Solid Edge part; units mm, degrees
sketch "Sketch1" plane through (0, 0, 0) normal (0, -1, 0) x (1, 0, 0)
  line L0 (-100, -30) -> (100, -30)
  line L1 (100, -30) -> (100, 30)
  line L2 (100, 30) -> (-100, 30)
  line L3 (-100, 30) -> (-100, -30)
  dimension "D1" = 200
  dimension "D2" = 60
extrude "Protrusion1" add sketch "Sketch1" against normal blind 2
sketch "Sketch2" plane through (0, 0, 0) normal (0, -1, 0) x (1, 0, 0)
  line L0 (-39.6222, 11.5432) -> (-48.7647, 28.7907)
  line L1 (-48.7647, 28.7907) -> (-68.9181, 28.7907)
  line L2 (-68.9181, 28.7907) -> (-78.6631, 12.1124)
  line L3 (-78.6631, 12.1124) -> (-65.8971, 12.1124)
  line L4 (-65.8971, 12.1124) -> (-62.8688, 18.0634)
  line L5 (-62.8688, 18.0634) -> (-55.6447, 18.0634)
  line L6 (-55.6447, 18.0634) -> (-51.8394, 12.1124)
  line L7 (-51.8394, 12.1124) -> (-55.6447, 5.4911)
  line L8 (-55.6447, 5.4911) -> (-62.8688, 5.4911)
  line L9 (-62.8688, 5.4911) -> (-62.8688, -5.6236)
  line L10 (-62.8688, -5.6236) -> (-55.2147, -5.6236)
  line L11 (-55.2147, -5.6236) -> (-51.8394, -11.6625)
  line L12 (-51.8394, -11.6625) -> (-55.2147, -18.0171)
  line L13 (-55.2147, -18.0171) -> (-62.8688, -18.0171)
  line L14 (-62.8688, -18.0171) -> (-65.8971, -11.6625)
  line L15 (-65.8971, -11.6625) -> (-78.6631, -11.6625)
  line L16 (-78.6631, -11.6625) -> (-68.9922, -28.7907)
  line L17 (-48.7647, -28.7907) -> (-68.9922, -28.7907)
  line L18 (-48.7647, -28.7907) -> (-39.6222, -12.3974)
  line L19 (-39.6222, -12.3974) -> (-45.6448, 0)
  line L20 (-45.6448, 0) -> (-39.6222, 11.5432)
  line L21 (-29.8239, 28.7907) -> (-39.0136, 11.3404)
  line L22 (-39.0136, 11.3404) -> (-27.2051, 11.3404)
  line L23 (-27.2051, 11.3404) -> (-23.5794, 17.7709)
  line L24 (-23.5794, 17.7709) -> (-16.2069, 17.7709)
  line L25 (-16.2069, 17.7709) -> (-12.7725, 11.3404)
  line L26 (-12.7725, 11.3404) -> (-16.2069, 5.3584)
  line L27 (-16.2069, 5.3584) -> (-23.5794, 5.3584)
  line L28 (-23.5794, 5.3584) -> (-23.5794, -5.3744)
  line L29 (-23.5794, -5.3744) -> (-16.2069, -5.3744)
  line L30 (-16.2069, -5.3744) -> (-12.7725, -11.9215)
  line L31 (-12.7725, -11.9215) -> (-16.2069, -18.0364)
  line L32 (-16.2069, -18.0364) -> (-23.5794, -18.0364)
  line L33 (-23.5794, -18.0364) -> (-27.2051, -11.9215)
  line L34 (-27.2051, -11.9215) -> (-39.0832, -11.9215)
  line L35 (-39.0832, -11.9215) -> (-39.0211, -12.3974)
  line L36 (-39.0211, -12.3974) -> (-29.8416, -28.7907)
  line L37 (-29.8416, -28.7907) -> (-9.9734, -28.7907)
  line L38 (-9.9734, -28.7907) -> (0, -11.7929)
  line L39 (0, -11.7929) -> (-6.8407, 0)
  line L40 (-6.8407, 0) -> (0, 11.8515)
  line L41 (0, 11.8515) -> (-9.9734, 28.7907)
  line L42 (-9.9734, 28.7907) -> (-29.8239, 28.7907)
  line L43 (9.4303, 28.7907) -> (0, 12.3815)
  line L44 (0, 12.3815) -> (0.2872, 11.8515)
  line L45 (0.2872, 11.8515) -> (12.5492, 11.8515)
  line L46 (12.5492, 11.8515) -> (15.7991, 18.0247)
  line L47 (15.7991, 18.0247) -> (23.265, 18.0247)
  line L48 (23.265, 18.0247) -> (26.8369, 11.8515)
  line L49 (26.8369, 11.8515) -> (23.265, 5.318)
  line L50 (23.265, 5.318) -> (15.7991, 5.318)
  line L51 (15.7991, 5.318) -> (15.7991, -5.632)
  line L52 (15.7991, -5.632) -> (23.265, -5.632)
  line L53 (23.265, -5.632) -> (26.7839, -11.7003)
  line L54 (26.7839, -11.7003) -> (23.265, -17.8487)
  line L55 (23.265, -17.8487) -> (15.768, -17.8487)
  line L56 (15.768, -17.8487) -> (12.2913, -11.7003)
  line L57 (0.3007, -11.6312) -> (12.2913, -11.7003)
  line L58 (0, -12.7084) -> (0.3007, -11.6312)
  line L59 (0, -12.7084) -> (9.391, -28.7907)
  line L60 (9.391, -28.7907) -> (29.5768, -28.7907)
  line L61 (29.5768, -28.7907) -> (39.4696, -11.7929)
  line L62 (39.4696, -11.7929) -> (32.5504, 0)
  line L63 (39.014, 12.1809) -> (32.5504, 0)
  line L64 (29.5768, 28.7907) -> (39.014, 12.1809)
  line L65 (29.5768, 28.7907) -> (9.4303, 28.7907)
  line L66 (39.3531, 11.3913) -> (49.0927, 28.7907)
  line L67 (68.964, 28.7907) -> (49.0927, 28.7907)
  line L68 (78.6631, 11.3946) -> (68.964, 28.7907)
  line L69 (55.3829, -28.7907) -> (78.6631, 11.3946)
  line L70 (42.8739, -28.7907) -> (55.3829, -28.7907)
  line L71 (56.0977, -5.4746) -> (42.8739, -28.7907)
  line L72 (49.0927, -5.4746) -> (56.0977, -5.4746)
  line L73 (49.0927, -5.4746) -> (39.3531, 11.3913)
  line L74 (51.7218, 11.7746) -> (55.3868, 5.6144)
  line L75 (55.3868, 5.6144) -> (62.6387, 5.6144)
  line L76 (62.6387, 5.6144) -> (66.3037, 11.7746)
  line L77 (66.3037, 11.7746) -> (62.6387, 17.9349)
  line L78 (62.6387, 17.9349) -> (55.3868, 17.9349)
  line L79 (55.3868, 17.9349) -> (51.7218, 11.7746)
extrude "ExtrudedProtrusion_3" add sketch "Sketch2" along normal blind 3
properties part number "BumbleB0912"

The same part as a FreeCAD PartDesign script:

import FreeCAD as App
import Part
import Sketcher

V = App.Vector
Q = App.Units.Quantity

doc = App.newDocument("Part")
body = doc.addObject("PartDesign::Body", "Body")

# Sketch on XZ plane
sketch1 = doc.addObject("Sketcher::SketchObject", "Sketch")
body.addObject(sketch1)
sketch1.AttachmentSupport = (doc.XZ_Plane, [""])
sketch1.MapMode = "FlatFace"
sketch1.addGeometry(Part.LineSegment(V(-100, 30, 0), V(-100, -30, 0)), False)
sketch1.addGeometry(Part.LineSegment(V(-100, -30, 0), V(100, -30, 0)), False)
sketch1.addGeometry(Part.LineSegment(V(100, -30, 0), V(100, 30, 0)), False)
sketch1.addGeometry(Part.LineSegment(V(100, 30, 0), V(-100, 30, 0)), False)
sketch1.addConstraint(Sketcher.Constraint("Coincident", 0, 2, 1, 1))
sketch1.addConstraint(Sketcher.Constraint("Coincident", 1, 2, 2, 1))
sketch1.addConstraint(Sketcher.Constraint("Coincident", 2, 2, 3, 1))
sketch1.addConstraint(Sketcher.Constraint("Coincident", 3, 2, 0, 1))
sketch1.addConstraint(Sketcher.Constraint("Vertical", 0))
sketch1.addConstraint(Sketcher.Constraint("Horizontal", 1))
sketch1.addConstraint(Sketcher.Constraint("Vertical", 2))
sketch1.addConstraint(Sketcher.Constraint("Horizontal", 3))
sketch1.addConstraint(Sketcher.Constraint("Symmetric", 0, 2, 2, 2, -1, 1))
sketch1.addConstraint(Sketcher.Constraint("DistanceX", 0, 2, -1, 1, Q("100 mm")))
sketch1.addConstraint(Sketcher.Constraint("DistanceY", 0, 2, 0, 1, Q("60 mm")))
pad1 = doc.addObject("PartDesign::Pad", "Pad")
body.addObject(pad1)
pad1.Profile = sketch1
pad1.Length = 2
pad1.Reversed = True

# Sketch on XZ plane
sketch2 = doc.addObject("Sketcher::SketchObject", "Sketch001")
body.addObject(sketch2)
sketch2.AttachmentSupport = (doc.XZ_Plane, [""])
sketch2.MapMode = "FlatFace"
sketch2.addGeometry(Part.LineSegment(V(-45.6448, 0, 0), V(-39.6222, 11.5432, 0)), False)
sketch2.addGeometry(Part.LineSegment(V(-39.6222, 11.5432, 0), V(-48.7647, 28.7907, 0)), False)
sketch2.addGeometry(Part.LineSegment(V(-48.7647, 28.7907, 0), V(-68.9181, 28.7907, 0)), False)
sketch2.addGeometry(Part.LineSegment(V(-68.9181, 28.7907, 0), V(-78.6631, 12.1124, 0)), False)
sketch2.addGeometry(Part.LineSegment(V(-78.6631, 12.1124, 0), V(-65.8971, 12.1124, 0)), False)
sketch2.addGeometry(Part.LineSegment(V(-65.8971, 12.1124, 0), V(-62.8688, 18.0634, 0)), False)
sketch2.addGeometry(Part.LineSegment(V(-62.8688, 18.0634, 0), V(-55.6447, 18.0634, 0)), False)
sketch2.addGeometry(Part.LineSegment(V(-55.6447, 18.0634, 0), V(-51.8394, 12.1124, 0)), False)
sketch2.addGeometry(Part.LineSegment(V(-51.8394, 12.1124, 0), V(-55.6447, 5.4911, 0)), False)
sketch2.addGeometry(Part.LineSegment(V(-55.6447, 5.4911, 0), V(-62.8688, 5.4911, 0)), False)
sketch2.addGeometry(Part.LineSegment(V(-62.8688, 5.4911, 0), V(-62.8688, -5.6236, 0)), False)
sketch2.addGeometry(Part.LineSegment(V(-62.8688, -5.6236, 0), V(-55.2147, -5.6236, 0)), False)
sketch2.addGeometry(Part.LineSegment(V(-55.2147, -5.6236, 0), V(-51.8394, -11.6625, 0)), False)
sketch2.addGeometry(Part.LineSegment(V(-51.8394, -11.6625, 0), V(-55.2147, -18.0171, 0)), False)
sketch2.addGeometry(Part.LineSegment(V(-55.2147, -18.0171, 0), V(-62.8688, -18.0171, 0)), False)
sketch2.addGeometry(Part.LineSegment(V(-62.8688, -18.0171, 0), V(-65.8971, -11.6625, 0)), False)
sketch2.addGeometry(Part.LineSegment(V(-65.8971, -11.6625, 0), V(-78.6631, -11.6625, 0)), False)
sketch2.addGeometry(Part.LineSegment(V(-78.6631, -11.6625, 0), V(-68.9922, -28.7907, 0)), False)
sketch2.addGeometry(Part.LineSegment(V(-68.9922, -28.7907, 0), V(-48.7647, -28.7907, 0)), False)
sketch2.addGeometry(Part.LineSegment(V(-48.7647, -28.7907, 0), V(-39.6222, -12.3974, 0)), False)
sketch2.addGeometry(Part.LineSegment(V(-39.6222, -12.3974, 0), V(-45.6448, 0, 0)), False)
sketch2.addGeometry(Part.LineSegment(V(-9.9734, 28.7907, 0), V(-29.8239, 28.7907, 0)), False)
sketch2.addGeometry(Part.LineSegment(V(-29.8239, 28.7907, 0), V(-39.0136, 11.3404, 0)), False)
sketch2.addGeometry(Part.LineSegment(V(-39.0136, 11.3404, 0), V(-27.2051, 11.3404, 0)), False)
sketch2.addGeometry(Part.LineSegment(V(-27.2051, 11.3404, 0), V(-23.5794, 17.7709, 0)), False)
sketch2.addGeometry(Part.LineSegment(V(-23.5794, 17.7709, 0), V(-16.2069, 17.7709, 0)), False)
sketch2.addGeometry(Part.LineSegment(V(-16.2069, 17.7709, 0), V(-12.7725, 11.3404, 0)), False)
sketch2.addGeometry(Part.LineSegment(V(-12.7725, 11.3404, 0), V(-16.2069, 5.3584, 0)), False)
sketch2.addGeometry(Part.LineSegment(V(-16.2069, 5.3584, 0), V(-23.5794, 5.3584, 0)), False)
sketch2.addGeometry(Part.LineSegment(V(-23.5794, 5.3584, 0), V(-23.5794, -5.3744, 0)), False)
sketch2.addGeometry(Part.LineSegment(V(-23.5794, -5.3744, 0), V(-16.2069, -5.3744, 0)), False)
sketch2.addGeometry(Part.LineSegment(V(-16.2069, -5.3744, 0), V(-12.7725, -11.9215, 0)), False)
sketch2.addGeometry(Part.LineSegment(V(-12.7725, -11.9215, 0), V(-16.2069, -18.0364, 0)), False)
sketch2.addGeometry(Part.LineSegment(V(-16.2069, -18.0364, 0), V(-23.5794, -18.0364, 0)), False)
sketch2.addGeometry(Part.LineSegment(V(-23.5794, -18.0364, 0), V(-27.2051, -11.9215, 0)), False)
sketch2.addGeometry(Part.LineSegment(V(-27.2051, -11.9215, 0), V(-39.0832, -11.9215, 0)), False)
sketch2.addGeometry(Part.LineSegment(V(-39.0832, -11.9215, 0), V(-39.0211, -12.3974, 0)), False)
sketch2.addGeometry(Part.LineSegment(V(-39.0211, -12.3974, 0), V(-29.8416, -28.7907, 0)), False)
sketch2.addGeometry(Part.LineSegment(V(-29.8416, -28.7907, 0), V(-9.9734, -28.7907, 0)), False)
sketch2.addGeometry(Part.LineSegment(V(-9.9734, -28.7907, 0), V(0, -11.7929, 0)), False)
sketch2.addGeometry(Part.LineSegment(V(0, -11.7929, 0), V(-6.8407, 0, 0)), False)
sketch2.addGeometry(Part.LineSegment(V(-6.8407, 0, 0), V(0, 11.8515, 0)), False)
sketch2.addGeometry(Part.LineSegment(V(0, 11.8515, 0), V(-9.9734, 28.7907, 0)), False)
sketch2.addGeometry(Part.LineSegment(V(29.5768, 28.7907, 0), V(9.4303, 28.7907, 0)), False)
sketch2.addGeometry(Part.LineSegment(V(9.4303, 28.7907, 0), V(0, 12.3815, 0)), False)
sketch2.addGeometry(Part.LineSegment(V(0, 12.3815, 0), V(0.2872, 11.8515, 0)), False)
sketch2.addGeometry(Part.LineSegment(V(0.2872, 11.8515, 0), V(12.5492, 11.8515, 0)), False)
sketch2.addGeometry(Part.LineSegment(V(12.5492, 11.8515, 0), V(15.7991, 18.0247, 0)), False)
sketch2.addGeometry(Part.LineSegment(V(15.7991, 18.0247, 0), V(23.265, 18.0247, 0)), False)
sketch2.addGeometry(Part.LineSegment(V(23.265, 18.0247, 0), V(26.8369, 11.8515, 0)), False)
sketch2.addGeometry(Part.LineSegment(V(26.8369, 11.8515, 0), V(23.265, 5.318, 0)), False)
sketch2.addGeometry(Part.LineSegment(V(23.265, 5.318, 0), V(15.7991, 5.318, 0)), False)
sketch2.addGeometry(Part.LineSegment(V(15.7991, 5.318, 0), V(15.7991, -5.632, 0)), False)
sketch2.addGeometry(Part.LineSegment(V(15.7991, -5.632, 0), V(23.265, -5.632, 0)), False)
sketch2.addGeometry(Part.LineSegment(V(23.265, -5.632, 0), V(26.7839, -11.7003, 0)), False)
sketch2.addGeometry(Part.LineSegment(V(26.7839, -11.7003, 0), V(23.265, -17.8487, 0)), False)
sketch2.addGeometry(Part.LineSegment(V(23.265, -17.8487, 0), V(15.768, -17.8487, 0)), False)
sketch2.addGeometry(Part.LineSegment(V(15.768, -17.8487, 0), V(12.2913, -11.7003, 0)), False)
sketch2.addGeometry(Part.LineSegment(V(12.2913, -11.7003, 0), V(0.3007, -11.6312, 0)), False)
sketch2.addGeometry(Part.LineSegment(V(0.3007, -11.6312, 0), V(0, -12.7084, 0)), False)
sketch2.addGeometry(Part.LineSegment(V(0, -12.7084, 0), V(9.391, -28.7907, 0)), False)
sketch2.addGeometry(Part.LineSegment(V(9.391, -28.7907, 0), V(29.5768, -28.7907, 0)), False)
sketch2.addGeometry(Part.LineSegment(V(29.5768, -28.7907, 0), V(39.4696, -11.7929, 0)), False)
sketch2.addGeometry(Part.LineSegment(V(39.4696, -11.7929, 0), V(32.5504, 0, 0)), False)
sketch2.addGeometry(Part.LineSegment(V(32.5504, 0, 0), V(39.014, 12.1809, 0)), False)
sketch2.addGeometry(Part.LineSegment(V(39.014, 12.1809, 0), V(29.5768, 28.7907, 0)), False)
sketch2.addGeometry(Part.LineSegment(V(49.0927, 28.7907, 0), V(39.3531, 11.3913, 0)), False)
sketch2.addGeometry(Part.LineSegment(V(39.3531, 11.3913, 0), V(49.0927, -5.4746, 0)), False)
sketch2.addGeometry(Part.LineSegment(V(49.0927, -5.4746, 0), V(56.0977, -5.4746, 0)), False)
sketch2.addGeometry(Part.LineSegment(V(56.0977, -5.4746, 0), V(42.8739, -28.7907, 0)), False)
sketch2.addGeometry(Part.LineSegment(V(42.8739, -28.7907, 0), V(55.3829, -28.7907, 0)), False)
sketch2.addGeometry(Part.LineSegment(V(55.3829, -28.7907, 0), V(78.6631, 11.3946, 0)), False)
sketch2.addGeometry(Part.LineSegment(V(78.6631, 11.3946, 0), V(68.964, 28.7907, 0)), False)
sketch2.addGeometry(Part.LineSegment(V(68.964, 28.7907, 0), V(49.0927, 28.7907, 0)), False)
sketch2.addGeometry(Part.LineSegment(V(55.3868, 5.6144, 0), V(51.7218, 11.7746, 0)), False)
sketch2.addGeometry(Part.LineSegment(V(51.7218, 11.7746, 0), V(55.3868, 17.9349, 0)), False)
sketch2.addGeometry(Part.LineSegment(V(55.3868, 17.9349, 0), V(62.6387, 17.9349, 0)), False)
sketch2.addGeometry(Part.LineSegment(V(62.6387, 17.9349, 0), V(66.3037, 11.7746, 0)), False)
sketch2.addGeometry(Part.LineSegment(V(66.3037, 11.7746, 0), V(62.6387, 5.6144, 0)), False)
sketch2.addGeometry(Part.LineSegment(V(62.6387, 5.6144, 0), V(55.3868, 5.6144, 0)), False)
sketch2.addConstraint(Sketcher.Constraint("Coincident", 0, 2, 1, 1))
sketch2.addConstraint(Sketcher.Constraint("Coincident", 1, 2, 2, 1))
sketch2.addConstraint(Sketcher.Constraint("Coincident", 2, 2, 3, 1))
sketch2.addConstraint(Sketcher.Constraint("Coincident", 3, 2, 4, 1))
sketch2.addConstraint(Sketcher.Constraint("Coincident", 4, 2, 5, 1))
sketch2.addConstraint(Sketcher.Constraint("Coincident", 5, 2, 6, 1))
sketch2.addConstraint(Sketcher.Constraint("Coincident", 6, 2, 7, 1))
sketch2.addConstraint(Sketcher.Constraint("Coincident", 7, 2, 8, 1))
sketch2.addConstraint(Sketcher.Constraint("Coincident", 8, 2, 9, 1))
sketch2.addConstraint(Sketcher.Constraint("Coincident", 9, 2, 10, 1))
sketch2.addConstraint(Sketcher.Constraint("Coincident", 10, 2, 11, 1))
sketch2.addConstraint(Sketcher.Constraint("Coincident", 11, 2, 12, 1))
sketch2.addConstraint(Sketcher.Constraint("Coincident", 12, 2, 13, 1))
sketch2.addConstraint(Sketcher.Constraint("Coincident", 13, 2, 14, 1))
sketch2.addConstraint(Sketcher.Constraint("Coincident", 14, 2, 15, 1))
sketch2.addConstraint(Sketcher.Constraint("Coincident", 15, 2, 16, 1))
sketch2.addConstraint(Sketcher.Constraint("Coincident", 16, 2, 17, 1))
sketch2.addConstraint(Sketcher.Constraint("Coincident", 17, 2, 18, 1))
sketch2.addConstraint(Sketcher.Constraint("Coincident", 18, 2, 19, 1))
sketch2.addConstraint(Sketcher.Constraint("Coincident", 19, 2, 20, 1))
sketch2.addConstraint(Sketcher.Constraint("Coincident", 20, 2, 0, 1))
sketch2.addConstraint(Sketcher.Constraint("Coincident", 21, 2, 22, 1))
sketch2.addConstraint(Sketcher.Constraint("Coincident", 22, 2, 23, 1))
sketch2.addConstraint(Sketcher.Constraint("Coincident", 23, 2, 24, 1))
sketch2.addConstraint(Sketcher.Constraint("Coincident", 24, 2, 25, 1))
sketch2.addConstraint(Sketcher.Constraint("Coincident", 25, 2, 26, 1))
sketch2.addConstraint(Sketcher.Constraint("Coincident", 26, 2, 27, 1))
sketch2.addConstraint(Sketcher.Constraint("Coincident", 27, 2, 28, 1))
sketch2.addConstraint(Sketcher.Constraint("Coincident", 28, 2, 29, 1))
sketch2.addConstraint(Sketcher.Constraint("Coincident", 29, 2, 30, 1))
sketch2.addConstraint(Sketcher.Constraint("Coincident", 30, 2, 31, 1))
sketch2.addConstraint(Sketcher.Constraint("Coincident", 31, 2, 32, 1))
sketch2.addConstraint(Sketcher.Constraint("Coincident", 32, 2, 33, 1))
sketch2.addConstraint(Sketcher.Constraint("Coincident", 33, 2, 34, 1))
sketch2.addConstraint(Sketcher.Constraint("Coincident", 34, 2, 35, 1))
sketch2.addConstraint(Sketcher.Constraint("Coincident", 35, 2, 36, 1))
sketch2.addConstraint(Sketcher.Constraint("Coincident", 36, 2, 37, 1))
sketch2.addConstraint(Sketcher.Constraint("Coincident", 37, 2, 38, 1))
sketch2.addConstraint(Sketcher.Constraint("Coincident", 38, 2, 39, 1))
sketch2.addConstraint(Sketcher.Constraint("Coincident", 39, 2, 40, 1))
sketch2.addConstraint(Sketcher.Constraint("Coincident", 40, 2, 41, 1))
sketch2.addConstraint(Sketcher.Constraint("Coincident", 41, 2, 42, 1))
sketch2.addConstraint(Sketcher.Constraint("Coincident", 42, 2, 21, 1))
sketch2.addConstraint(Sketcher.Constraint("Coincident", 43, 2, 44, 1))
sketch2.addConstraint(Sketcher.Constraint("Coincident", 44, 2, 45, 1))
sketch2.addConstraint(Sketcher.Constraint("Coincident", 45, 2, 46, 1))
sketch2.addConstraint(Sketcher.Constraint("Coincident", 46, 2, 47, 1))
sketch2.addConstraint(Sketcher.Constraint("Coincident", 47, 2, 48, 1))
sketch2.addConstraint(Sketcher.Constraint("Coincident", 48, 2, 49, 1))
sketch2.addConstraint(Sketcher.Constraint("Coincident", 49, 2, 50, 1))
sketch2.addConstraint(Sketcher.Constraint("Coincident", 50, 2, 51, 1))
sketch2.addConstraint(Sketcher.Constraint("Coincident", 51, 2, 52, 1))
sketch2.addConstraint(Sketcher.Constraint("Coincident", 52, 2, 53, 1))
sketch2.addConstraint(Sketcher.Constraint("Coincident", 53, 2, 54, 1))
sketch2.addConstraint(Sketcher.Constraint("Coincident", 54, 2, 55, 1))
sketch2.addConstraint(Sketcher.Constraint("Coincident", 55, 2, 56, 1))
sketch2.addConstraint(Sketcher.Constraint("Coincident", 56, 2, 57, 1))
sketch2.addConstraint(Sketcher.Constraint("Coincident", 57, 2, 58, 1))
sketch2.addConstraint(Sketcher.Constraint("Coincident", 58, 2, 59, 1))
sketch2.addConstraint(Sketcher.Constraint("Coincident", 59, 2, 60, 1))
sketch2.addConstraint(Sketcher.Constraint("Coincident", 60, 2, 61, 1))
sketch2.addConstraint(Sketcher.Constraint("Coincident", 61, 2, 62, 1))
sketch2.addConstraint(Sketcher.Constraint("Coincident", 62, 2, 63, 1))
sketch2.addConstraint(Sketcher.Constraint("Coincident", 63, 2, 64, 1))
sketch2.addConstraint(Sketcher.Constraint("Coincident", 64, 2, 65, 1))
sketch2.addConstraint(Sketcher.Constraint("Coincident", 65, 2, 43, 1))
sketch2.addConstraint(Sketcher.Constraint("Coincident", 66, 2, 67, 1))
sketch2.addConstraint(Sketcher.Constraint("Coincident", 67, 2, 68, 1))
sketch2.addConstraint(Sketcher.Constraint("Coincident", 68, 2, 69, 1))
sketch2.addConstraint(Sketcher.Constraint("Coincident", 69, 2, 70, 1))
sketch2.addConstraint(Sketcher.Constraint("Coincident", 70, 2, 71, 1))
sketch2.addConstraint(Sketcher.Constraint("Coincident", 71, 2, 72, 1))
sketch2.addConstraint(Sketcher.Constraint("Coincident", 72, 2, 73, 1))
sketch2.addConstraint(Sketcher.Constraint("Coincident", 73, 2, 66, 1))
sketch2.addConstraint(Sketcher.Constraint("Coincident", 74, 2, 75, 1))
sketch2.addConstraint(Sketcher.Constraint("Coincident", 75, 2, 76, 1))
sketch2.addConstraint(Sketcher.Constraint("Coincident", 76, 2, 77, 1))
sketch2.addConstraint(Sketcher.Constraint("Coincident", 77, 2, 78, 1))
sketch2.addConstraint(Sketcher.Constraint("Coincident", 78, 2, 79, 1))
sketch2.addConstraint(Sketcher.Constraint("Coincident", 79, 2, 74, 1))
sketch2.addConstraint(Sketcher.Constraint("Horizontal", 2))
sketch2.addConstraint(Sketcher.Constraint("Horizontal", 4))
sketch2.addConstraint(Sketcher.Constraint("Horizontal", 6))
sketch2.addConstraint(Sketcher.Constraint("Horizontal", 9))
sketch2.addConstraint(Sketcher.Constraint("Vertical", 10))
sketch2.addConstraint(Sketcher.Constraint("Horizontal", 11))
sketch2.addConstraint(Sketcher.Constraint("Horizontal", 14))
sketch2.addConstraint(Sketcher.Constraint("Horizontal", 16))
sketch2.addConstraint(Sketcher.Constraint("Horizontal", 18))
sketch2.addConstraint(Sketcher.Constraint("Horizontal", 21))
sketch2.addConstraint(Sketcher.Constraint("Horizontal", 23))
sketch2.addConstraint(Sketcher.Constraint("Horizontal", 25))
sketch2.addConstraint(Sketcher.Constraint("Horizontal", 28))
sketch2.addConstraint(Sketcher.Constraint("Vertical", 29))
sketch2.addConstraint(Sketcher.Constraint("Horizontal", 30))
sketch2.addConstraint(Sketcher.Constraint("Horizontal", 33))
sketch2.addConstraint(Sketcher.Constraint("Horizontal", 35))
sketch2.addConstraint(Sketcher.Constraint("Horizontal", 38))
sketch2.addConstraint(Sketcher.Constraint("Horizontal", 43))
sketch2.addConstraint(Sketcher.Constraint("Horizontal", 46))
sketch2.addConstraint(Sketcher.Constraint("Horizontal", 48))
sketch2.addConstraint(Sketcher.Constraint("Horizontal", 51))
sketch2.addConstraint(Sketcher.Constraint("Vertical", 52))
sketch2.addConstraint(Sketcher.Constraint("Horizontal", 53))
sketch2.addConstraint(Sketcher.Constraint("Horizontal", 56))
sketch2.addConstraint(Sketcher.Constraint("Horizontal", 61))
sketch2.addConstraint(Sketcher.Constraint("Horizontal", 68))
sketch2.addConstraint(Sketcher.Constraint("Horizontal", 70))
sketch2.addConstraint(Sketcher.Constraint("Horizontal", 73))
sketch2.addConstraint(Sketcher.Constraint("Horizontal", 76))
sketch2.addConstraint(Sketcher.Constraint("Horizontal", 79))
sketch2.addConstraint(Sketcher.Constraint("PointOnObject", 20, 2, -1))
sketch2.addConstraint(Sketcher.Constraint("PointOnObject", 39, 2, -2))
sketch2.addConstraint(Sketcher.Constraint("PointOnObject", 40, 2, -1))
sketch2.addConstraint(Sketcher.Constraint("PointOnObject", 41, 2, -2))
sketch2.addConstraint(Sketcher.Constraint("PointOnObject", 44, 2, -2))
sketch2.addConstraint(Sketcher.Constraint("PointOnObject", 59, 2, -2))
sketch2.addConstraint(Sketcher.Constraint("PointOnObject", 63, 2, -1))
sketch2.addConstraint(Sketcher.Constraint("DistanceY", 52, 2, 52, 1, Q("10.95 mm")))
sketch2.addConstraint(Sketcher.Constraint("Distance", 36, Q("0.48 mm")))
sketch2.addConstraint(Sketcher.Constraint("Distance", 66, Q("19.94 mm")))
sketch2.addConstraint(Sketcher.Constraint("DistanceX", 4, 1, 4, 2, Q("12.766 mm")))
sketch2.addConstraint(Sketcher.Constraint("DistanceX", 6, 1, 6, 2, Q("7.224 mm")))
sketch2.addConstraint(Sketcher.Constraint("DistanceX", 9, 2, 9, 1, Q("7.224 mm")))
sketch2.addConstraint(Sketcher.Constraint("DistanceX", 11, 1, 11, 2, Q("7.654 mm")))
sketch2.addConstraint(Sketcher.Constraint("DistanceX", 14, 2, 14, 1, Q("7.654 mm")))
sketch2.addConstraint(Sketcher.Constraint("DistanceX", 16, 2, 16, 1, Q("12.766 mm")))
sketch2.addConstraint(Sketcher.Constraint("DistanceX", 35, 2, 35, 1, Q("11.878 mm")))
sketch2.addConstraint(Sketcher.Constraint("DistanceX", 46, 1, 46, 2, Q("12.262 mm")))
sketch2.addConstraint(Sketcher.Constraint("DistanceX", 48, 1, 48, 2, Q("7.466 mm")))
sketch2.addConstraint(Sketcher.Constraint("DistanceX", 51, 2, 51, 1, Q("7.466 mm")))
sketch2.addConstraint(Sketcher.Constraint("DistanceX", 53, 1, 53, 2, Q("7.466 mm")))
sketch2.addConstraint(Sketcher.Constraint("DistanceX", 56, 2, 56, 1, Q("7.497 mm")))
sketch2.addConstraint(Sketcher.Constraint("DistanceX", 68, 1, 68, 2, Q("7.005 mm")))
sketch2.addConstraint(Sketcher.Constraint("DistanceX", 70, 1, 70, 2, Q("12.509 mm")))
sketch2.addConstraint(Sketcher.Constraint("DistanceX", 76, 1, 76, 2, Q("7.252 mm")))
sketch2.addConstraint(Sketcher.Constraint("DistanceX", 79, 2, 79, 1, Q("7.252 mm")))
sketch2.addConstraint(Sketcher.Constraint("Distance", 34, Q("7.109 mm")))
sketch2.addConstraint(Sketcher.Constraint("Distance", 41, Q("13.684 mm")))
sketch2.addConstraint(Sketcher.Constraint("Distance", 44, Q("18.926 mm")))
sketch2.addConstraint(Sketcher.Constraint("Distance", 49, Q("7.132 mm")))
sketch2.addConstraint(Sketcher.Constraint("Distance", 62, Q("19.667 mm")))
sketch2.addConstraint(Sketcher.Constraint("Distance", 63, Q("13.673 mm")))
sketch2.addConstraint(Sketcher.Constraint("Distance", 67, Q("19.476 mm")))
sketch2.addConstraint(Sketcher.Constraint("Distance", 69, Q("26.805 mm")))
sketch2.addConstraint(Sketcher.Constraint("Distance", 74, Q("7.168 mm")))
sketch2.addConstraint(Sketcher.Constraint("Distance", 75, Q("7.168 mm")))
sketch2.addConstraint(Sketcher.Constraint("Distance", 77, Q("7.168 mm")))
sketch2.addConstraint(Sketcher.Constraint("Distance", 78, Q("7.168 mm")))
sketch2.addConstraint(Sketcher.Constraint("DistanceX", 2, 2, 2, 1, Q("20.1534 mm")))
sketch2.addConstraint(Sketcher.Constraint("DistanceX", 18, 1, 18, 2, Q("20.2275 mm")))
sketch2.addConstraint(Sketcher.Constraint("DistanceX", 21, 2, 21, 1, Q("19.8505 mm")))
sketch2.addConstraint(Sketcher.Constraint("DistanceX", 23, 1, 23, 2, Q("11.8085 mm")))
sketch2.addConstraint(Sketcher.Constraint("DistanceX", 25, 1, 25, 2, Q("7.3725 mm")))
sketch2.addConstraint(Sketcher.Constraint("DistanceX", 28, 2, 28, 1, Q("7.3725 mm")))
sketch2.addConstraint(Sketcher.Constraint("DistanceX", 30, 1, 30, 2, Q("7.3725 mm")))
sketch2.addConstraint(Sketcher.Constraint("DistanceX", 33, 2, 33, 1, Q("7.3725 mm")))
sketch2.addConstraint(Sketcher.Constraint("DistanceX", 38, 1, 38, 2, Q("19.8682 mm")))
sketch2.addConstraint(Sketcher.Constraint("DistanceX", 43, 2, 43, 1, Q("20.1465 mm")))
sketch2.addConstraint(Sketcher.Constraint("DistanceX", 61, 1, 61, 2, Q("20.1858 mm")))
sketch2.addConstraint(Sketcher.Constraint("DistanceX", 73, 2, 73, 1, Q("19.8713 mm")))
sketch2.addConstraint(Sketcher.Constraint("DistanceY", 10, 2, 10, 1, Q("11.1147 mm")))
sketch2.addConstraint(Sketcher.Constraint("DistanceY", 29, 2, 29, 1, Q("10.7328 mm")))
sketch2.addConstraint(Sketcher.Constraint("DistanceX", 2, 2, -1, 1, Q("68.918 mm")))
sketch2.addConstraint(Sketcher.Constraint("DistanceX", 3, 2, -1, 1, Q("78.663 mm")))
sketch2.addConstraint(Sketcher.Constraint("DistanceY", -1, 1, 8, 2, Q("5.491 mm")))
sketch2.addConstraint(Sketcher.Constraint("DistanceY", 13, 2, -1, 1, Q("18.017 mm")))
sketch2.addConstraint(Sketcher.Constraint("DistanceX", 15, 2, -1, 1, Q("65.897 mm")))
sketch2.addConstraint(Sketcher.Constraint("DistanceX", 21, 2, -1, 1, Q("29.824 mm")))
sketch2.addConstraint(Sketcher.Constraint("DistanceX", 23, 2, -1, 1, Q("27.205 mm")))
sketch2.addConstraint(Sketcher.Constraint("DistanceY", -1, 1, 24, 2, Q("17.771 mm")))
sketch2.addConstraint(Sketcher.Constraint("DistanceX", 25, 2, -1, 1, Q("16.207 mm")))
sketch2.addConstraint(Sketcher.Constraint("DistanceX", 27, 2, -1, 1, Q("16.207 mm")))
sketch2.addConstraint(Sketcher.Constraint("DistanceX", 32, 2, -1, 1, Q("16.207 mm")))
sketch2.addConstraint(Sketcher.Constraint("DistanceX", 34, 2, -1, 1, Q("27.205 mm")))
sketch2.addConstraint(Sketcher.Constraint("DistanceX", 36, 2, -1, 1, Q("39.021 mm")))
sketch2.addConstraint(Sketcher.Constraint("DistanceY", 39, 2, -1, 1, Q("11.793 mm")))
sketch2.addConstraint(Sketcher.Constraint("DistanceX", -1, 1, 47, 2, Q("15.799 mm")))
sketch2.addConstraint(Sketcher.Constraint("DistanceX", -1, 1, 49, 2, Q("26.837 mm")))
sketch2.addConstraint(Sketcher.Constraint("DistanceX", -1, 1, 50, 2, Q("23.265 mm")))
sketch2.addConstraint(Sketcher.Constraint("DistanceY", -1, 1, 50, 2, Q("5.318 mm")))
sketch2.addConstraint(Sketcher.Constraint("DistanceX", -1, 1, 54, 2, Q("26.784 mm")))
sketch2.addConstraint(Sketcher.Constraint("DistanceX", -1, 1, 55, 2, Q("23.265 mm")))
sketch2.addConstraint(Sketcher.Constraint("DistanceX", -1, 1, 60, 2, Q("9.391 mm")))
sketch2.addConstraint(Sketcher.Constraint("DistanceY", 62, 2, -1, 1, Q("11.793 mm")))
sketch2.addConstraint(Sketcher.Constraint("DistanceX", -1, 1, 64, 2, Q("39.014 mm")))
sketch2.addConstraint(Sketcher.Constraint("DistanceY", -1, 1, 64, 2, Q("12.181 mm")))
sketch2.addConstraint(Sketcher.Constraint("DistanceX", -1, 1, 66, 2, Q("39.353 mm")))
sketch2.addConstraint(Sketcher.Constraint("DistanceX", -1, 1, 69, 2, Q("42.874 mm")))
sketch2.addConstraint(Sketcher.Constraint("DistanceX", -1, 1, 71, 2, Q("78.663 mm")))
sketch2.addConstraint(Sketcher.Constraint("DistanceX", -1, 1, 72, 2, Q("68.964 mm")))
sketch2.addConstraint(Sketcher.Constraint("DistanceY", -1, 1, 75, 2, Q("17.935 mm")))
sketch2.addConstraint(Sketcher.Constraint("Distance", 0, Q("13.0199 mm")))
sketch2.addConstraint(Sketcher.Constraint("Distance", 1, Q("19.5208 mm")))
sketch2.addConstraint(Sketcher.Constraint("Distance", 3, Q("19.3166 mm")))
sketch2.addConstraint(Sketcher.Constraint("Distance", 5, Q("6.6772 mm")))
sketch2.addConstraint(Sketcher.Constraint("Distance", 7, Q("7.0636 mm")))
sketch2.addConstraint(Sketcher.Constraint("Distance", 8, Q("7.6369 mm")))
sketch2.addConstraint(Sketcher.Constraint("Distance", 12, Q("6.9182 mm")))
sketch2.addConstraint(Sketcher.Constraint("Distance", 13, Q("7.1954 mm")))
sketch2.addConstraint(Sketcher.Constraint("Distance", 15, Q("7.0393 mm")))
sketch2.addConstraint(Sketcher.Constraint("Distance", 17, Q("19.6698 mm")))
sketch2.addConstraint(Sketcher.Constraint("Distance", 19, Q("18.7703 mm")))
sketch2.addConstraint(Sketcher.Constraint("Distance", 20, Q("13.7829 mm")))
sketch2.addConstraint(Sketcher.Constraint("Distance", 22, Q("19.7222 mm")))
sketch2.addConstraint(Sketcher.Constraint("Distance", 24, Q("7.3822 mm")))
sketch2.addConstraint(Sketcher.Constraint("Distance", 26, Q("7.2902 mm")))
sketch2.addConstraint(Sketcher.Constraint("Distance", 27, Q("6.8978 mm")))
sketch2.addConstraint(Sketcher.Constraint("Distance", 31, Q("7.3932 mm")))
sketch2.addConstraint(Sketcher.Constraint("Distance", 32, Q("7.0134 mm")))
sketch2.addConstraint(Sketcher.Constraint("Distance", 37, Q("18.7884 mm")))
sketch2.addConstraint(Sketcher.Constraint("Distance", 39, Q("19.7077 mm")))
sketch2.addConstraint(Sketcher.Constraint("Distance", 40, Q("13.6333 mm")))
sketch2.addConstraint(Sketcher.Constraint("Distance", 45, Q("0.6028 mm")))
sketch2.addConstraint(Sketcher.Constraint("Distance", 47, Q("6.9764 mm")))
sketch2.addConstraint(Sketcher.Constraint("Distance", 50, Q("7.4461 mm")))
sketch2.addConstraint(Sketcher.Constraint("Distance", 54, Q("7.0148 mm")))
sketch2.addConstraint(Sketcher.Constraint("Distance", 55, Q("7.0842 mm")))
sketch2.addConstraint(Sketcher.Constraint("Distance", 57, Q("7.0633 mm")))
sketch2.addConstraint(Sketcher.Constraint("Distance", 58, Q("11.9908 mm")))
sketch2.addConstraint(Sketcher.Constraint("Distance", 59, Q("1.1184 mm")))
sketch2.addConstraint(Sketcher.Constraint("Distance", 60, Q("18.6234 mm")))
sketch2.addConstraint(Sketcher.Constraint("Distance", 64, Q("13.7896 mm")))
sketch2.addConstraint(Sketcher.Constraint("Distance", 65, Q("19.1036 mm")))
sketch2.addConstraint(Sketcher.Constraint("Distance", 71, Q("46.4416 mm")))
sketch2.addConstraint(Sketcher.Constraint("Distance", 72, Q("19.9172 mm")))
sketch2.addConstraint(Sketcher.Constraint("DistanceX", 0, 2, -1, 1, Q("39.6222 mm")))
sketch2.addConstraint(Sketcher.Constraint("DistanceY", -1, 1, 0, 2, Q("11.5432 mm")))
sketch2.addConstraint(Sketcher.Constraint("DistanceX", 5, 2, -1, 1, Q("62.8688 mm")))
sketch2.addConstraint(Sketcher.Constraint("DistanceX", 7, 2, -1, 1, Q("51.8394 mm")))
sketch2.addConstraint(Sketcher.Constraint("DistanceX", 12, 2, -1, 1, Q("51.8394 mm")))
sketch2.addConstraint(Sketcher.Constraint("DistanceX", 17, 2, -1, 1, Q("68.9922 mm")))
sketch2.addConstraint(Sketcher.Constraint("DistanceX", 26, 2, -1, 1, Q("12.7725 mm")))
sketch2.addConstraint(Sketcher.Constraint("DistanceX", 31, 2, -1, 1, Q("12.7725 mm")))
sketch2.addConstraint(Sketcher.Constraint("DistanceX", -1, 1, 43, 2, Q("9.4303 mm")))
sketch2.addConstraint(Sketcher.Constraint("DistanceX", -1, 1, 57, 2, Q("12.2913 mm")))
sketch2.addConstraint(Sketcher.Constraint("DistanceY", -1, 1, 66, 2, Q("11.3913 mm")))
sketch2.addConstraint(Sketcher.Constraint("DistanceX", -1, 1, 74, 2, Q("51.7218 mm")))
sketch2.addConstraint(Sketcher.Constraint("DistanceY", -1, 1, 74, 2, Q("11.7746 mm")))
sketch2.addConstraint(Sketcher.Constraint("DistanceX", -1, 1, 77, 2, Q("66.3037 mm")))
pad2 = doc.addObject("PartDesign::Pad", "Pad001")
body.addObject(pad2)
pad2.Profile = sketch2
pad2.Length = 3

doc.recompute()
